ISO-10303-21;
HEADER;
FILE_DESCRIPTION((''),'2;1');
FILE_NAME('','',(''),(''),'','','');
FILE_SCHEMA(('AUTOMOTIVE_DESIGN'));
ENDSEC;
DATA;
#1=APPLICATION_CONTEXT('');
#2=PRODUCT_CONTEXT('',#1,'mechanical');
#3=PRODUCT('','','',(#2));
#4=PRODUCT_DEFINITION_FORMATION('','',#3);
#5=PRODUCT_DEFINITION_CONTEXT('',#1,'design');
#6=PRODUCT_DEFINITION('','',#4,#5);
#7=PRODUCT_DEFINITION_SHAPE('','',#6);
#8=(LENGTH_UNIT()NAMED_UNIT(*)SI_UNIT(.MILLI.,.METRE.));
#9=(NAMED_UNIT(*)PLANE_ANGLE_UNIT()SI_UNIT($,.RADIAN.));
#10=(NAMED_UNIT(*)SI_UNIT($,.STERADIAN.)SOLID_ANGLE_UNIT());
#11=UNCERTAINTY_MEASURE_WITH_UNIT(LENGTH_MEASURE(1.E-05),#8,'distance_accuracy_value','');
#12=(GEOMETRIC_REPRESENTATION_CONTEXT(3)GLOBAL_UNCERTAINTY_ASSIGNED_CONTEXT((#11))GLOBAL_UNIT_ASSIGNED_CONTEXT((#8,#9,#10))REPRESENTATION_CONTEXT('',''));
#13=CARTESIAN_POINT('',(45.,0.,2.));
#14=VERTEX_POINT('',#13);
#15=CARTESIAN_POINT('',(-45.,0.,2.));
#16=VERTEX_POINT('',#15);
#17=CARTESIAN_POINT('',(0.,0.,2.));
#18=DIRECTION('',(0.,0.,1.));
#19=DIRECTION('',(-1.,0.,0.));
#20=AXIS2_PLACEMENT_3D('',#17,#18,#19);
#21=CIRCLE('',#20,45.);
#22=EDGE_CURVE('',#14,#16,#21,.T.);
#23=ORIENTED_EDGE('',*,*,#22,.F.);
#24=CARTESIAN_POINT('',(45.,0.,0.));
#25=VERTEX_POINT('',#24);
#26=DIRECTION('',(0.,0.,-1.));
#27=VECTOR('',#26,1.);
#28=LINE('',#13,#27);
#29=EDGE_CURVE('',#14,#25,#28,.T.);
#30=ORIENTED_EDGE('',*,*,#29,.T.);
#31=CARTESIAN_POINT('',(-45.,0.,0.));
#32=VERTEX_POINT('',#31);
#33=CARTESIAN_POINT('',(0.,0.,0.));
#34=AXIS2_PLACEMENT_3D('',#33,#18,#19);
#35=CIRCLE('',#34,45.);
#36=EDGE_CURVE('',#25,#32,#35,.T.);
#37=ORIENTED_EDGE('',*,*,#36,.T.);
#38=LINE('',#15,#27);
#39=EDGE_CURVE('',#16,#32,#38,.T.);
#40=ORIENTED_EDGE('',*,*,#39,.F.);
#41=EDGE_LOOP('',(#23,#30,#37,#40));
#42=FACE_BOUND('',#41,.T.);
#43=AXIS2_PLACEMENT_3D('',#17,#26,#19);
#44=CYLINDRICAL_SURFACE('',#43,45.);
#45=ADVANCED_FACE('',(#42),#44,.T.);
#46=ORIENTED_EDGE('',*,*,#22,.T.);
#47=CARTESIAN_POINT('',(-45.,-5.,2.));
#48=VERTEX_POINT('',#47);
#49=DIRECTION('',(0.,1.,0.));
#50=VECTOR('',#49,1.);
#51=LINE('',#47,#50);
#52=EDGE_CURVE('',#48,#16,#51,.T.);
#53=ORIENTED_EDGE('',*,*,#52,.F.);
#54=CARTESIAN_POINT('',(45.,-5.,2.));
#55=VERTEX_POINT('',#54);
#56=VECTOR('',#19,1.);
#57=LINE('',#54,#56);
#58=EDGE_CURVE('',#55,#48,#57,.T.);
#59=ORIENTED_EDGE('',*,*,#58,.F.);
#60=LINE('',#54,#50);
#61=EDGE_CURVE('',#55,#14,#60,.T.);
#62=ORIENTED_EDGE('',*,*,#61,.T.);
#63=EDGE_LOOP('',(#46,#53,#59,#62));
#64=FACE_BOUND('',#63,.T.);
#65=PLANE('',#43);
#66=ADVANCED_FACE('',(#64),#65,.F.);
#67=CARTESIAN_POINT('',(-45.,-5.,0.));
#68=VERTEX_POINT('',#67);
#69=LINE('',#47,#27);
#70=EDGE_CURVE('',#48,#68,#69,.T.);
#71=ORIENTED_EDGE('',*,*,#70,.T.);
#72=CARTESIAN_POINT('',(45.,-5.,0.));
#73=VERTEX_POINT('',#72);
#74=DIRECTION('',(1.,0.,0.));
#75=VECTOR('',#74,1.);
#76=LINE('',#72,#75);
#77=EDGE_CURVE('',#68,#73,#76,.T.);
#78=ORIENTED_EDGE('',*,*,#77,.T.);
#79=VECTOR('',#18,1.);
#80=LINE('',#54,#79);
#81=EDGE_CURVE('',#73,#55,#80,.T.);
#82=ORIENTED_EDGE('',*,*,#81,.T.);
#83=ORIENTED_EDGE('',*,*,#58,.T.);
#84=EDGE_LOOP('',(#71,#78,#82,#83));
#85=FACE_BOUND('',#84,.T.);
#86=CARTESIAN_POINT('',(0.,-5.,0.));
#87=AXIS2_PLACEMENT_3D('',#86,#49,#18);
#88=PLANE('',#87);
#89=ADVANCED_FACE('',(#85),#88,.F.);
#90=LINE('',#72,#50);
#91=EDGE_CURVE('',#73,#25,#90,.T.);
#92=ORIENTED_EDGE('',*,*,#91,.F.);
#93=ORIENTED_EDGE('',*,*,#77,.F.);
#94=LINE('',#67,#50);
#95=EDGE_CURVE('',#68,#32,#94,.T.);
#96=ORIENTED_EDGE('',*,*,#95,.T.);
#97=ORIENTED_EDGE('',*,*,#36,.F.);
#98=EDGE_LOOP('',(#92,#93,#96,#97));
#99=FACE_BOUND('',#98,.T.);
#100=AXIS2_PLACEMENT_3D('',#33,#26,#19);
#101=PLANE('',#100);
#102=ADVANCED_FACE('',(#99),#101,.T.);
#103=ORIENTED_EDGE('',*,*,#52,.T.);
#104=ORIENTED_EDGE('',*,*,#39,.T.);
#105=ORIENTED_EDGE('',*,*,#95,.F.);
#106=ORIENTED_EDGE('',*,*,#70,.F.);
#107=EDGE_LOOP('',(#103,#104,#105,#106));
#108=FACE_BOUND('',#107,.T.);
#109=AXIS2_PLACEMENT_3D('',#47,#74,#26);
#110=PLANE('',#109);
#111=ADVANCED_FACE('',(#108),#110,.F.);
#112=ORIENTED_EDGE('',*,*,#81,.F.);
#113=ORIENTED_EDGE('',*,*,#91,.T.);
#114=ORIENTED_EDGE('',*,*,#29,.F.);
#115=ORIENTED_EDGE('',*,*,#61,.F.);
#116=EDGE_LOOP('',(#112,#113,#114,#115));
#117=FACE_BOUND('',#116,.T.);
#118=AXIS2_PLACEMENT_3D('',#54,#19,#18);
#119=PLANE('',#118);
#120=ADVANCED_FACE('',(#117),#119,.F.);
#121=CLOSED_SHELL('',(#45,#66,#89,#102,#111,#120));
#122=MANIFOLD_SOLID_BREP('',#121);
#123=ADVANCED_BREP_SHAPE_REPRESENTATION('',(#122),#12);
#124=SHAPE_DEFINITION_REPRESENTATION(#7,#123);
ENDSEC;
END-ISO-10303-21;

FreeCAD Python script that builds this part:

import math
import FreeCAD as App
import Part
import Sketcher

V = App.Vector
Q = App.Units.Quantity


def add_polygon(sketch, points):
    """Adds a closed chain of lines whose ends are joined by coincident constraints."""
    first, n = sketch.GeometryCount, len(points)
    for a, b in zip(points, points[1:] + points[:1]):
        sketch.addGeometry(Part.LineSegment(App.Vector(*a, 0), App.Vector(*b, 0)), False)
    for i in range(n):
        sketch.addConstraint(Sketcher.Constraint("Coincident", first + i, 2, first + (i + 1) % n, 1))

doc = App.newDocument("Part")
body = doc.addObject("PartDesign::Body", "Body")

sketch1 = body.newObject("Sketcher::SketchObject", "Sketch")
sketch1.AttachmentSupport = (doc.getObject("XY_Plane"), [""])
sketch1.MapMode = "FlatFace"
sketch1.addGeometry([
    Part.LineSegment(V(-45, 0, 0), V(45, 0, 0)),
    Part.ArcOfCircle(Part.Circle(V(0, 0, 0), V(0, 0, 1), 45), math.radians(0), math.radians(180)),
], False)
sketch1.addConstraint([
    Sketcher.Constraint("Coincident", 0, 1, 1, 2),
    Sketcher.Constraint("Coincident", 1, 1, 0, 2),
    Sketcher.Constraint("Horizontal", 0),
    Sketcher.Constraint("Coincident", 1, 3, -1, 1),
    Sketcher.Constraint("PointOnObject", 0, 1, -1),
    Sketcher.Constraint("Radius", 1, Q("45 mm")),
])
pad1 = body.newObject("PartDesign::Pad", "Pad")
pad1.Profile = sketch1
pad1.Length = 2

sketch2 = body.newObject("Sketcher::SketchObject", "Sketch001")
sketch2.AttachmentSupport = (doc.getObject("XZ_Plane"), [""])
sketch2.MapMode = "FlatFace"
add_polygon(sketch2, [(-45, 2), (-45, 0), (45, 0), (45, 2)])
sketch2.addConstraint([
    Sketcher.Constraint("Vertical", 0),
    Sketcher.Constraint("Horizontal", 1),
    Sketcher.Constraint("Vertical", 2),
    Sketcher.Constraint("Horizontal", 3),
    Sketcher.Constraint("Symmetric", 0, 2, 1, 2, -1, 1),
    Sketcher.Constraint("DistanceX", 1, 1, 1, 2, Q("90 mm")),
    Sketcher.Constraint("DistanceY", 0, 2, 0, 1, Q("2 mm")),
])
pad2 = body.newObject("PartDesign::Pad", "Pad001")
pad2.Profile = sketch2
pad2.Length = 5

doc.recompute()
